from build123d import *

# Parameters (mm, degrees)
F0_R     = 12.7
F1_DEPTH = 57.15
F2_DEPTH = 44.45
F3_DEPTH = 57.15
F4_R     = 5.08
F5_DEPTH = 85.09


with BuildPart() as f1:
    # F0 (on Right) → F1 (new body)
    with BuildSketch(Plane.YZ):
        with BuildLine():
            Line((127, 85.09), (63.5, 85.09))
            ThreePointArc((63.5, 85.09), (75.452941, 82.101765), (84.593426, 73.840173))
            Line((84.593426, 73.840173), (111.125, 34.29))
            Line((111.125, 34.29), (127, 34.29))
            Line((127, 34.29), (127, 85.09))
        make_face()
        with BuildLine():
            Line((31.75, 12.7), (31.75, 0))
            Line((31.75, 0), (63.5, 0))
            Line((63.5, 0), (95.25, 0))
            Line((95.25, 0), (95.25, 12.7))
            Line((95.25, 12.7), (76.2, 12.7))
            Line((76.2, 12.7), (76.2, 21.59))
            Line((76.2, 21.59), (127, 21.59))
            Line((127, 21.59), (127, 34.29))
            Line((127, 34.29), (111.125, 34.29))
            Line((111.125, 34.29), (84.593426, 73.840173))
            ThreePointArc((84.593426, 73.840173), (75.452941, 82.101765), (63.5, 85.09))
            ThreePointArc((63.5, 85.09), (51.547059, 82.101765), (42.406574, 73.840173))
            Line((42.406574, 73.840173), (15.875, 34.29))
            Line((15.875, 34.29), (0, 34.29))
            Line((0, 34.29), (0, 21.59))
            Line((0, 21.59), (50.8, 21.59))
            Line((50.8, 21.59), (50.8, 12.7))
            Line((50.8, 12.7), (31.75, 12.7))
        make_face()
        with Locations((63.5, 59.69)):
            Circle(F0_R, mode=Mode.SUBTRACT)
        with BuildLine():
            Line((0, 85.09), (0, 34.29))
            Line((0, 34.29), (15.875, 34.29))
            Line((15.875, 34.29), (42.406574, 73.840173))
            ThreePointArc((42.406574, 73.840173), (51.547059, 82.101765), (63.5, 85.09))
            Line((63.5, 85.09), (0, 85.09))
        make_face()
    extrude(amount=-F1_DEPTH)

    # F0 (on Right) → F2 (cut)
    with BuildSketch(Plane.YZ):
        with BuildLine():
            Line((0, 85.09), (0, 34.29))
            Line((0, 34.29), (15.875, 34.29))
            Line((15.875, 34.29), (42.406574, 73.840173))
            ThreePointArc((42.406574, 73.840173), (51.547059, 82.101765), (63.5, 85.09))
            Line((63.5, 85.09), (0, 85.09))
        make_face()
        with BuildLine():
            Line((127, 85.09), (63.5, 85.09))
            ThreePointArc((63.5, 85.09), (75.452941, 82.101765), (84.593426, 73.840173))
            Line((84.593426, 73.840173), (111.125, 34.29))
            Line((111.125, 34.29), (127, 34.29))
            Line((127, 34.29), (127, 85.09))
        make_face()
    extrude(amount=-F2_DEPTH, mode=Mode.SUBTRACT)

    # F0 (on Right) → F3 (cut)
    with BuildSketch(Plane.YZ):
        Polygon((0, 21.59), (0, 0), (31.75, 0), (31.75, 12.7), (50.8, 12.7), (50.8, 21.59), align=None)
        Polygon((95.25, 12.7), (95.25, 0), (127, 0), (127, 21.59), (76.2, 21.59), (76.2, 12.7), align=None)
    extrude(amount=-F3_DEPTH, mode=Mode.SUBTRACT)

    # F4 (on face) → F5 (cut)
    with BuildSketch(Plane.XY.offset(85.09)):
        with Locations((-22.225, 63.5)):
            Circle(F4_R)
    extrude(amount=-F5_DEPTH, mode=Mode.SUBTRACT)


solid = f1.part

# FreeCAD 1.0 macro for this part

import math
import FreeCAD as App
import Part
import Sketcher
Q = App.Units.Quantity

doc = App.newDocument("Part")
params = doc.addObject("Spreadsheet::Sheet", "Params")
for row, (alias, value) in enumerate([
    ("sketch1_diameter", "1 in"),
    ("sketch1_width", "5 in"),
    ("sketch1_width2", "2 in"),
    ("sketch1_width3", "2.5 in"),
    ("sketch1_height", "0.5 in"),
    ("pad1_length", "2.25 in"),
    ("sketch2_radius", "1 in"),
    ("sketch2_height", "2 in"),
    ("sketch2_width", "2.5 in"),
    ("sketch2_width2", "0.625 in"),
    ("pocket1_length", "1.75 in"),
    ("sketch3_width", "2 in"),
    ("sketch3_height", "0.5 in"),
    ("sketch3_width2", "1.25 in"),
    ("sketch3_height2", "0.85 in"),
    ("pocket2_length", "2.25 in"),
    ("sketch4_diameter", "0.4 in"),
    ("pocket3_length", "3.35 in"),
], start=1):
    params.set(f"A{row}", alias)
    params.set(f"B{row}", "=" + value)
    params.setAlias(f"B{row}", alias)

body = doc.addObject("PartDesign::Body", "Body")

# Sketch on YZ plane
sketch1 = body.newObject("Sketcher::SketchObject", "Sketch")
sketch1.AttachmentSupport = (doc.getObject("YZ_Plane"), [""])
sketch1.MapMode = "FlatFace"
sketch1.addGeometry(Part.LineSegment(App.Vector(127, 85, 0), App.Vector(0, 85, 0)), False)
sketch1.addGeometry(Part.LineSegment(App.Vector(0, 85, 0), App.Vector(0, 22, 0)), False)
sketch1.addGeometry(Part.LineSegment(App.Vector(0, 22, 0), App.Vector(51, 22, 0)), False)
sketch1.addGeometry(Part.LineSegment(App.Vector(51, 22, 0), App.Vector(51, 13, 0)), False)
sketch1.addGeometry(Part.LineSegment(App.Vector(51, 13, 0), App.Vector(32, 13, 0)), False)
sketch1.addGeometry(Part.LineSegment(App.Vector(32, 13, 0), App.Vector(32, 0, 0)), False)
sketch1.addGeometry(Part.LineSegment(App.Vector(32, 0, 0), App.Vector(95, 0, 0)), False)
sketch1.addGeometry(Part.LineSegment(App.Vector(95, 0, 0), App.Vector(95, 13, 0)), False)
sketch1.addGeometry(Part.LineSegment(App.Vector(95, 13, 0), App.Vector(76, 13, 0)), False)
sketch1.addGeometry(Part.LineSegment(App.Vector(76, 13, 0), App.Vector(76, 22, 0)), False)
sketch1.addGeometry(Part.LineSegment(App.Vector(76, 22, 0), App.Vector(127, 22, 0)), False)
sketch1.addGeometry(Part.LineSegment(App.Vector(127, 22, 0), App.Vector(127, 85, 0)), False)
sketch1.addGeometry(Part.Circle(App.Vector(64, 60, 0), App.Vector(0, 0, 1), 13), False)
sketch1.addConstraint(Sketcher.Constraint("Coincident", 0, 2, 1, 1))
sketch1.addConstraint(Sketcher.Constraint("Coincident", 1, 2, 2, 1))
sketch1.addConstraint(Sketcher.Constraint("Coincident", 2, 2, 3, 1))
sketch1.addConstraint(Sketcher.Constraint("Coincident", 3, 2, 4, 1))
sketch1.addConstraint(Sketcher.Constraint("Coincident", 4, 2, 5, 1))
sketch1.addConstraint(Sketcher.Constraint("Coincident", 5, 2, 6, 1))
sketch1.addConstraint(Sketcher.Constraint("Coincident", 6, 2, 7, 1))
sketch1.addConstraint(Sketcher.Constraint("Coincident", 7, 2, 8, 1))
sketch1.addConstraint(Sketcher.Constraint("Coincident", 8, 2, 9, 1))
sketch1.addConstraint(Sketcher.Constraint("Coincident", 9, 2, 10, 1))
sketch1.addConstraint(Sketcher.Constraint("Coincident", 10, 2, 11, 1))
sketch1.addConstraint(Sketcher.Constraint("Coincident", 11, 2, 0, 1))
sketch1.addConstraint(Sketcher.Constraint("Horizontal", 0))
sketch1.addConstraint(Sketcher.Constraint("Vertical", 1))
sketch1.addConstraint(Sketcher.Constraint("Horizontal", 2))
sketch1.addConstraint(Sketcher.Constraint("Vertical", 3))
sketch1.addConstraint(Sketcher.Constraint("Horizontal", 4))
sketch1.addConstraint(Sketcher.Constraint("Vertical", 5))
sketch1.addConstraint(Sketcher.Constraint("Horizontal", 6))
sketch1.addConstraint(Sketcher.Constraint("Vertical", 7))
sketch1.addConstraint(Sketcher.Constraint("Horizontal", 8))
sketch1.addConstraint(Sketcher.Constraint("Vertical", 9))
sketch1.addConstraint(Sketcher.Constraint("Horizontal", 10))
sketch1.addConstraint(Sketcher.Constraint("Vertical", 11))
sketch1.addConstraint(Sketcher.Constraint("PointOnObject", 0, 2, -2))
sketch1.addConstraint(Sketcher.Constraint("PointOnObject", 5, 2, -1))
sketch1.addConstraint(Sketcher.Constraint("Horizontal", 4, 2, 7, 2))
sketch1.addConstraint(Sketcher.Constraint("Horizontal", 2, 2, 9, 2))
sketch1.addConstraint(Sketcher.Constraint("Equal", 4, 8))
sketch1.addConstraint(Sketcher.Constraint("Equal", 2, 10))
sketch1.addConstraint(Sketcher.Constraint("Equal", 6, 1))
sketch1.addConstraint(Sketcher.Constraint("Diameter", 12, Q("1 in")))
sketch1.addConstraint(Sketcher.Constraint("DistanceX", 0, 2, 0, 1, Q("5 in")))
sketch1.addConstraint(Sketcher.Constraint("DistanceX", 2, 1, 2, 2, Q("2 in")))
sketch1.addConstraint(Sketcher.Constraint("DistanceX", 6, 1, 6, 2, Q("2.5 in")))
sketch1.addConstraint(Sketcher.Constraint("DistanceY", 5, 2, 5, 1, Q("0.5 in")))
sketch1.addConstraint(Sketcher.Constraint("DistanceY", 12, 3, 0, 2, Q("1 in")))
sketch1.addConstraint(Sketcher.Constraint("DistanceY", 3, 2, 3, 1, Q("0.35 in")))
sketch1.addConstraint(Sketcher.Constraint("DistanceX", -1, 1, 12, 3, Q("2.5 in")))
sketch1.setExpression("Constraints[31]", "Params.sketch1_diameter")
sketch1.setExpression("Constraints[32]", "Params.sketch1_width")
sketch1.setExpression("Constraints[33]", "Params.sketch1_width2")
sketch1.setExpression("Constraints[34]", "Params.sketch1_width3")
sketch1.setExpression("Constraints[35]", "Params.sketch1_height")
pad1 = body.newObject("PartDesign::Pad", "Pad")
pad1.Profile = sketch1
pad1.setExpression("Length", "Params.pad1_length")
pad1.Reversed = True

# Sketch on YZ plane
sketch2 = body.newObject("Sketcher::SketchObject", "Sketch001")
sketch2.AttachmentSupport = (doc.getObject("YZ_Plane"), [""])
sketch2.MapMode = "FlatFace"
sketch2.addGeometry(Part.LineSegment(App.Vector(0, 85, 0), App.Vector(0, 34, 0)), False)
sketch2.addGeometry(Part.LineSegment(App.Vector(0, 34, 0), App.Vector(16, 34, 0)), False)
sketch2.addGeometry(Part.LineSegment(App.Vector(16, 34, 0), App.Vector(42, 74, 0)), False)
sketch2.addGeometry(Part.ArcOfCircle(Part.Circle(App.Vector(63, 60, 0), App.Vector(0, 0, 1), 25), math.radians(90), math.radians(146)), False)
sketch2.addGeometry(Part.LineSegment(App.Vector(64, 85, 0), App.Vector(0, 85, 0)), False)
sketch2.addGeometry(Part.LineSegment(App.Vector(127, 85, 0), App.Vector(64, 85, 0)), False)
sketch2.addGeometry(Part.ArcOfCircle(Part.Circle(App.Vector(64, 60, 0), App.Vector(0, 0, 1), 25), math.radians(34), math.radians(90)), False)
sketch2.addGeometry(Part.LineSegment(App.Vector(85, 74, 0), App.Vector(111, 34, 0)), False)
sketch2.addGeometry(Part.LineSegment(App.Vector(111, 34, 0), App.Vector(127, 34, 0)), False)
sketch2.addGeometry(Part.LineSegment(App.Vector(127, 34, 0), App.Vector(127, 85, 0)), False)
sketch2.addConstraint(Sketcher.Constraint("Coincident", 0, 2, 1, 1))
sketch2.addConstraint(Sketcher.Constraint("Coincident", 1, 2, 2, 1))
sketch2.addConstraint(Sketcher.Constraint("Tangent", 2, 2, 3, 2))
sketch2.addConstraint(Sketcher.Constraint("Tangent", 3, 1, 4, 1))
sketch2.addConstraint(Sketcher.Constraint("Coincident", 4, 2, 0, 1))
sketch2.addConstraint(Sketcher.Constraint("Tangent", 5, 2, 6, 2))
sketch2.addConstraint(Sketcher.Constraint("Tangent", 6, 1, 7, 1))
sketch2.addConstraint(Sketcher.Constraint("Coincident", 7, 2, 8, 1))
sketch2.addConstraint(Sketcher.Constraint("Coincident", 8, 2, 9, 1))
sketch2.addConstraint(Sketcher.Constraint("Coincident", 9, 2, 5, 1))
sketch2.addConstraint(Sketcher.Constraint("Vertical", 0))
sketch2.addConstraint(Sketcher.Constraint("Horizontal", 1))
sketch2.addConstraint(Sketcher.Constraint("Horizontal", 4))
sketch2.addConstraint(Sketcher.Constraint("Horizontal", 5))
sketch2.addConstraint(Sketcher.Constraint("Horizontal", 8))
sketch2.addConstraint(Sketcher.Constraint("Vertical", 9))
sketch2.addConstraint(Sketcher.Constraint("Coincident", 6, 3, 3, 3))
sketch2.addConstraint(Sketcher.Constraint("Equal", 3, 6))
sketch2.addConstraint(Sketcher.Constraint("PointOnObject", 0, 2, -2))
sketch2.addConstraint(Sketcher.Constraint("Horizontal", 2, 2, 6, 1))
sketch2.addConstraint(Sketcher.Constraint("Horizontal", 1, 2, 7, 2))
sketch2.addConstraint(Sketcher.Constraint("Equal", 4, 5))
sketch2.addConstraint(Sketcher.Constraint("Radius", 3, Q("1 in")))
sketch2.addConstraint(Sketcher.Constraint("DistanceY", 0, 2, 0, 1, Q("2 in")))
sketch2.addConstraint(Sketcher.Constraint("DistanceX", 4, 2, 4, 1, Q("2.5 in")))
sketch2.addConstraint(Sketcher.Constraint("DistanceX", 1, 1, 1, 2, Q("0.625 in")))
sketch2.addConstraint(Sketcher.Constraint("DistanceY", -1, 1, 3, 3, Q("2.35 in")))
sketch2.setExpression("Constraints[22]", "Params.sketch2_radius")
sketch2.setExpression("Constraints[23]", "Params.sketch2_height")
sketch2.setExpression("Constraints[24]", "Params.sketch2_width")
sketch2.setExpression("Constraints[25]", "Params.sketch2_width2")
pocket1 = body.newObject("PartDesign::Pocket", "Pocket")
pocket1.Profile = sketch2
pocket1.setExpression("Length", "Params.pocket1_length")

# Sketch on YZ plane
sketch3 = body.newObject("Sketcher::SketchObject", "Sketch002")
sketch3.AttachmentSupport = (doc.getObject("YZ_Plane"), [""])
sketch3.MapMode = "FlatFace"
sketch3.addGeometry(Part.LineSegment(App.Vector(0, 22, 0), App.Vector(0, 0, 0)), False)
sketch3.addGeometry(Part.LineSegment(App.Vector(0, 0, 0), App.Vector(32, 0, 0)), False)
sketch3.addGeometry(Part.LineSegment(App.Vector(32, 0, 0), App.Vector(32, 13, 0)), False)
sketch3.addGeometry(Part.LineSegment(App.Vector(32, 13, 0), App.Vector(51, 13, 0)), False)
sketch3.addGeometry(Part.LineSegment(App.Vector(51, 13, 0), App.Vector(51, 22, 0)), False)
sketch3.addGeometry(Part.LineSegment(App.Vector(51, 22, 0), App.Vector(0, 22, 0)), False)
sketch3.addGeometry(Part.LineSegment(App.Vector(95, 13, 0), App.Vector(95, 0, 0)), False)
sketch3.addGeometry(Part.LineSegment(App.Vector(95, 0, 0), App.Vector(127, 0, 0)), False)
sketch3.addGeometry(Part.LineSegment(App.Vector(127, 0, 0), App.Vector(127, 22, 0)), False)
sketch3.addGeometry(Part.LineSegment(App.Vector(127, 22, 0), App.Vector(76, 22, 0)), False)
sketch3.addGeometry(Part.LineSegment(App.Vector(76, 22, 0), App.Vector(76, 13, 0)), False)
sketch3.addGeometry(Part.LineSegment(App.Vector(76, 13, 0), App.Vector(95, 13, 0)), False)
sketch3.addConstraint(Sketcher.Constraint("Coincident", 0, 2, 1, 1))
sketch3.addConstraint(Sketcher.Constraint("Coincident", 1, 2, 2, 1))
sketch3.addConstraint(Sketcher.Constraint("Coincident", 2, 2, 3, 1))
sketch3.addConstraint(Sketcher.Constraint("Coincident", 3, 2, 4, 1))
sketch3.addConstraint(Sketcher.Constraint("Coincident", 4, 2, 5, 1))
sketch3.addConstraint(Sketcher.Constraint("Coincident", 5, 2, 0, 1))
sketch3.addConstraint(Sketcher.Constraint("Coincident", 6, 2, 7, 1))
sketch3.addConstraint(Sketcher.Constraint("Coincident", 7, 2, 8, 1))
sketch3.addConstraint(Sketcher.Constraint("Coincident", 8, 2, 9, 1))
sketch3.addConstraint(Sketcher.Constraint("Coincident", 9, 2, 10, 1))
sketch3.addConstraint(Sketcher.Constraint("Coincident", 10, 2, 11, 1))
sketch3.addConstraint(Sketcher.Constraint("Coincident", 11, 2, 6, 1))
sketch3.addConstraint(Sketcher.Constraint("Vertical", 0))
sketch3.addConstraint(Sketcher.Constraint("Horizontal", 1))
sketch3.addConstraint(Sketcher.Constraint("Vertical", 2))
sketch3.addConstraint(Sketcher.Constraint("Horizontal", 3))
sketch3.addConstraint(Sketcher.Constraint("Vertical", 4))
sketch3.addConstraint(Sketcher.Constraint("Horizontal", 5))
sketch3.addConstraint(Sketcher.Constraint("Vertical", 6))
sketch3.addConstraint(Sketcher.Constraint("Horizontal", 7))
sketch3.addConstraint(Sketcher.Constraint("Vertical", 8))
sketch3.addConstraint(Sketcher.Constraint("Horizontal", 9))
sketch3.addConstraint(Sketcher.Constraint("Vertical", 10))
sketch3.addConstraint(Sketcher.Constraint("Horizontal", 11))
sketch3.addConstraint(Sketcher.Constraint("Coincident", 0, 2, -1, 1))
sketch3.addConstraint(Sketcher.Constraint("PointOnObject", 6, 2, -1))
sketch3.addConstraint(Sketcher.Constraint("Horizontal", 5, 2, 8, 2))
sketch3.addConstraint(Sketcher.Constraint("Horizontal", 3, 2, 10, 2))
sketch3.addConstraint(Sketcher.Constraint("Equal", 1, 7))
sketch3.addConstraint(Sketcher.Constraint("Equal", 5, 9))
sketch3.addConstraint(Sketcher.Constraint("DistanceX", 5, 2, 5, 1, Q("2 in")))
sketch3.addConstraint(Sketcher.Constraint("DistanceY", 2, 1, 2, 2, Q("0.5 in")))
sketch3.addConstraint(Sketcher.Constraint("DistanceX", -1, 1, 7, 2, Q("5 in")))
sketch3.addConstraint(Sketcher.Constraint("DistanceX", 1, 1, 1, 2, Q("1.25 in")))
sketch3.addConstraint(Sketcher.Constraint("DistanceY", 0, 2, 0, 1, Q("0.85 in")))
sketch3.setExpression("Constraints[30]", "Params.sketch3_width")
sketch3.setExpression("Constraints[31]", "Params.sketch3_height")
sketch3.setExpression("Constraints[33]", "Params.sketch3_width2")
sketch3.setExpression("Constraints[34]", "Params.sketch3_height2")
pocket2 = body.newObject("PartDesign::Pocket", "Pocket001")
pocket2.Profile = sketch3
pocket2.setExpression("Length", "Params.pocket2_length")

# Sketch on XY plane
sketch4 = body.newObject("Sketcher::SketchObject", "Sketch003")
sketch4.AttachmentSupport = (doc.getObject("XY_Plane"), [""])
sketch4.MapMode = "FlatFace"
sketch4.AttachmentOffset = App.Placement(App.Vector(0, 0, 3.35 * 25.4), App.Rotation())
sketch4.addGeometry(Part.Circle(App.Vector(-22, 64, 0), App.Vector(0, 0, 1), 5), False)
sketch4.addConstraint(Sketcher.Constraint("Diameter", 0, Q("0.4 in")))
sketch4.addConstraint(Sketcher.Constraint("DistanceY", -1, 1, 0, 3, Q("2.5 in")))
sketch4.addConstraint(Sketcher.Constraint("DistanceX", 0, 3, -1, 1, Q("0.875 in")))
sketch4.setExpression("Constraints[0]", "Params.sketch4_diameter")
pocket3 = body.newObject("PartDesign::Pocket", "Pocket002")
pocket3.Profile = sketch4
pocket3.setExpression("Length", "Params.pocket3_length")

doc.recompute()
